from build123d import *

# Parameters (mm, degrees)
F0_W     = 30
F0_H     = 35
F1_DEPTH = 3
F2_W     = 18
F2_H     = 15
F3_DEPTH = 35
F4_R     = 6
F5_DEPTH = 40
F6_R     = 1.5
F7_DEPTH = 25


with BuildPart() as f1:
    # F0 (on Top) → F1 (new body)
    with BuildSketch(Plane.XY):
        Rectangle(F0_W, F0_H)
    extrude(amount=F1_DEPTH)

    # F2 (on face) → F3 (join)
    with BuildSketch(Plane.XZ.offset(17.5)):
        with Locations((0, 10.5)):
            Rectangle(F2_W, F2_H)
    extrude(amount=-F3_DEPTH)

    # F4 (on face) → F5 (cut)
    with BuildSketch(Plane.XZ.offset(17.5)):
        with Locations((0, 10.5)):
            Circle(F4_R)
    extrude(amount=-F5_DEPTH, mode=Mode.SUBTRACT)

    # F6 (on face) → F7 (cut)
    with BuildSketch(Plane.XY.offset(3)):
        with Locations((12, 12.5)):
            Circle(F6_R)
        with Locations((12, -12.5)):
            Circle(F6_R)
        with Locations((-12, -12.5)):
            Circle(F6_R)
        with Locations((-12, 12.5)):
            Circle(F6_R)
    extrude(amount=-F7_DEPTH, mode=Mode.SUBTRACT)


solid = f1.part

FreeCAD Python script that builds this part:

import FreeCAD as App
import Part
import Sketcher

V = App.Vector
Q = App.Units.Quantity


def add_polygon(sketch, points):
    """Adds a closed chain of lines whose ends are joined by coincident constraints."""
    first, n = sketch.GeometryCount, len(points)
    for a, b in zip(points, points[1:] + points[:1]):
        sketch.addGeometry(Part.LineSegment(App.Vector(*a, 0), App.Vector(*b, 0)), False)
    for i in range(n):
        sketch.addConstraint(Sketcher.Constraint("Coincident", first + i, 2, first + (i + 1) % n, 1))

doc = App.newDocument("Part")
params = doc.addObject("Spreadsheet::Sheet", "Params")
for row, (alias, value) in enumerate([
    ("sketch1_width", "30 mm"),
    ("sketch1_height", "35 mm"),
    ("pad1_length", "3 mm"),
    ("sketch2_width", "18 mm"),
    ("sketch2_height", "15 mm"),
    ("pad2_length", "35 mm"),
    ("sketch3_diameter", "12 mm"),
    ("pocket1_length", "40 mm"),
    ("sketch4_diameter", "3 mm"),
    ("pocket2_length", "25 mm"),
], start=1):
    params.set(f"A{row}", alias)
    params.set(f"B{row}", "=" + value)
    params.setAlias(f"B{row}", alias)

body = doc.addObject("PartDesign::Body", "Body")

# Sketch on XY plane
sketch1 = body.newObject("Sketcher::SketchObject", "Sketch")
sketch1.AttachmentSupport = (doc.getObject("XY_Plane"), [""])
sketch1.MapMode = "FlatFace"
add_polygon(sketch1, [(-15, 18), (-15, -18), (15, -18), (15, 18)])  # lines 0-3
sketch1.addConstraint([
    Sketcher.Constraint("Vertical", 0),
    Sketcher.Constraint("Horizontal", 1),
    Sketcher.Constraint("Vertical", 2),
    Sketcher.Constraint("Horizontal", 3),
    Sketcher.Constraint("Symmetric", 0, 2, 2, 2, -1, 1),
    Sketcher.Constraint("DistanceX", 1, 1, 1, 2, Q("30 mm")),
    Sketcher.Constraint("DistanceY", 0, 2, 0, 1, Q("35 mm")),
])
sketch1.setExpression("Constraints[9]", "Params.sketch1_width")
sketch1.setExpression("Constraints[10]", "Params.sketch1_height")
pad1 = body.newObject("PartDesign::Pad", "Pad")
pad1.Profile = sketch1
pad1.setExpression("Length", "Params.pad1_length")

# Sketch on XZ plane
sketch2 = body.newObject("Sketcher::SketchObject", "Sketch001")
sketch2.AttachmentSupport = (doc.getObject("XZ_Plane"), [""])
sketch2.MapMode = "FlatFace"
sketch2.AttachmentOffset = App.Placement(V(0, 0, 17.5), App.Rotation())
add_polygon(sketch2, [(-9, 18), (-9, 3), (9, 3), (9, 18)])  # lines 0-3
sketch2.addConstraint([
    Sketcher.Constraint("Vertical", 0),
    Sketcher.Constraint("Horizontal", 1),
    Sketcher.Constraint("Vertical", 2),
    Sketcher.Constraint("Horizontal", 3),
    Sketcher.Constraint("DistanceX", 1, 1, 1, 2, Q("18 mm")),
    Sketcher.Constraint("DistanceY", 0, 2, 0, 1, Q("15 mm")),
    Sketcher.Constraint("DistanceX", 0, 2, -1, 1, Q("9 mm")),
    Sketcher.Constraint("DistanceY", -1, 1, 0, 2, Q("3 mm")),
])
sketch2.setExpression("Constraints[8]", "Params.sketch2_width")
sketch2.setExpression("Constraints[9]", "Params.sketch2_height")
pad2 = body.newObject("PartDesign::Pad", "Pad001")
pad2.Profile = sketch2
pad2.setExpression("Length", "Params.pad2_length")
pad2.Reversed = True

# Sketch on XZ plane
sketch3 = body.newObject("Sketcher::SketchObject", "Sketch002")
sketch3.AttachmentSupport = (doc.getObject("XZ_Plane"), [""])
sketch3.MapMode = "FlatFace"
sketch3.AttachmentOffset = App.Placement(V(0, 0, 17.5), App.Rotation())
sketch3.addGeometry(Part.Circle(V(0, 10, 0), V(0, 0, 1), 6), False)
sketch3.addConstraint([
    Sketcher.Constraint("PointOnObject", 0, 3, -2),
    Sketcher.Constraint("Diameter", 0, Q("12 mm")),
    Sketcher.Constraint("DistanceY", -1, 1, 0, 3, Q("10.5 mm")),
])
sketch3.setExpression("Constraints[1]", "Params.sketch3_diameter")
pocket1 = body.newObject("PartDesign::Pocket", "Pocket")
pocket1.Profile = sketch3
pocket1.setExpression("Length", "Params.pocket1_length")

# Sketch on XY plane
sketch4 = body.newObject("Sketcher::SketchObject", "Sketch003")
sketch4.AttachmentSupport = (doc.getObject("XY_Plane"), [""])
sketch4.MapMode = "FlatFace"
sketch4.AttachmentOffset = App.Placement(V(0, 0, 3), App.Rotation())
sketch4.addGeometry([
    Part.Circle(V(12, 12.5, 0), V(0, 0, 1), 1.5),
    Part.Circle(V(12, -12.5, 0), V(0, 0, 1), 1.5),
    Part.Circle(V(-12, -12.5, 0), V(0, 0, 1), 1.5),
    Part.Circle(V(-12, 12.5, 0), V(0, 0, 1), 1.5),
], False)
sketch4.addConstraint([
    Sketcher.Constraint("Equal", 0, 1),
    Sketcher.Constraint("Equal", 1, 2),
    Sketcher.Constraint("Equal", 2, 3),
    Sketcher.Constraint("Symmetric", 0, 3, 2, 3, -1, 1),
    Sketcher.Constraint("Symmetric", 1, 3, 3, 3, -1, 1),
    Sketcher.Constraint("Symmetric", 1, 3, 2, 3, -2),
    Sketcher.Constraint("Diameter", 0, Q("3 mm")),
    Sketcher.Constraint("DistanceX", -1, 1, 0, 3, Q("12 mm")),
    Sketcher.Constraint("DistanceY", 1, 3, 0, 3, Q("25 mm")),
])
sketch4.setExpression("Constraints[6]", "Params.sketch4_diameter")
pocket2 = body.newObject("PartDesign::Pocket", "Pocket001")
pocket2.Profile = sketch4
pocket2.setExpression("Length", "Params.pocket2_length")

doc.recompute()
